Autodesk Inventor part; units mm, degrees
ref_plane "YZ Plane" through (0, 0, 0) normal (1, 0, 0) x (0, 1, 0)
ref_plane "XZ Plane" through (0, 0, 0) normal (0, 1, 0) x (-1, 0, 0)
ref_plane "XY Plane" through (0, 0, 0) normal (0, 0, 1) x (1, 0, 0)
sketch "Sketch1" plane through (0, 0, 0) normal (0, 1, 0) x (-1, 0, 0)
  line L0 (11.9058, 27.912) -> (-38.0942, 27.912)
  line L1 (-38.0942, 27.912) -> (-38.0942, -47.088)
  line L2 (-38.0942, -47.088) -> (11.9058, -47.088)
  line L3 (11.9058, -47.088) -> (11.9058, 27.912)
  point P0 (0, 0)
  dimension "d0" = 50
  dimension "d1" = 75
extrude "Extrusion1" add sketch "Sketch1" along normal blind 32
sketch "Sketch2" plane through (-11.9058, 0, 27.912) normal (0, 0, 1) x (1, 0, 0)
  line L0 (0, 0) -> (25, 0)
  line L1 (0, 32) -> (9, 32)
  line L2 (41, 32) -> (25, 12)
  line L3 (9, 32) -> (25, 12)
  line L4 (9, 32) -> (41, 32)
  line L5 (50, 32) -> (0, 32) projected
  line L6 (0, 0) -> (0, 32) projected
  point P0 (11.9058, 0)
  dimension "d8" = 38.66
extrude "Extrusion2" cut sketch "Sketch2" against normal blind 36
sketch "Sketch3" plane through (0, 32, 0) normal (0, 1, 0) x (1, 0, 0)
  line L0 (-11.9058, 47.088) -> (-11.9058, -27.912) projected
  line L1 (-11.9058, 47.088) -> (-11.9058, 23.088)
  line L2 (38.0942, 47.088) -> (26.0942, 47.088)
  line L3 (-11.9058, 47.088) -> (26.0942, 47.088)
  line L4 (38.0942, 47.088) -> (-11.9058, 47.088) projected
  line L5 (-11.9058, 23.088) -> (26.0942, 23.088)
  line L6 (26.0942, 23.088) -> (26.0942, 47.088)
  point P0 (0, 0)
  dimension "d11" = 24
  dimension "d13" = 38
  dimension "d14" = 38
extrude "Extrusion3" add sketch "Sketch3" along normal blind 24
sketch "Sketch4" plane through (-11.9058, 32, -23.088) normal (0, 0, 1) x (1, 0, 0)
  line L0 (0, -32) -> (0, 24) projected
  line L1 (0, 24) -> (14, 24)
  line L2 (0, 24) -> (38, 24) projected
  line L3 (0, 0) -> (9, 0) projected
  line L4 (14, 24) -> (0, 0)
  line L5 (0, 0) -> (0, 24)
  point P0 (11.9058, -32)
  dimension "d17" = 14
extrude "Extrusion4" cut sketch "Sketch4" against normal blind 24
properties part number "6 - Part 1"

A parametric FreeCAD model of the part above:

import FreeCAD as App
import Part
import Sketcher
from FreeCAD import Vector

doc = App.newDocument("Part")
body = doc.addObject("PartDesign::Body", "Body")

# Sketch on XZ plane
sketch1 = doc.addObject("Sketcher::SketchObject", "Sketch")
body.addObject(sketch1)
sketch1.AttachmentSupport = (doc.XZ_Plane, [""])
sketch1.MapMode = "FlatFace"
sketch1.addGeometry([
    Part.LineSegment(Vector(-12, -47, 0), Vector(-12, 28, 0)),
    Part.LineSegment(Vector(-12, 28, 0), Vector(38, 28, 0)),
    Part.LineSegment(Vector(38, 28, 0), Vector(38, -47, 0)),
    Part.LineSegment(Vector(38, -47, 0), Vector(-12, -47, 0)),
], False)
sketch1.addConstraint([
    Sketcher.Constraint("Coincident", 0, 2, 1, 1),
    Sketcher.Constraint("Coincident", 1, 2, 2, 1),
    Sketcher.Constraint("Coincident", 2, 2, 3, 1),
    Sketcher.Constraint("Coincident", 3, 2, 0, 1),
    Sketcher.Constraint("Vertical", 0),
    Sketcher.Constraint("Horizontal", 1),
    Sketcher.Constraint("Vertical", 2),
    Sketcher.Constraint("Horizontal", 3),
    Sketcher.Constraint("DistanceX", 1, 1, 1, 2, 50.0),
    Sketcher.Constraint("DistanceY", 0, 1, 0, 2, 75.0),
    Sketcher.Constraint("DistanceY", -1, 1, 0, 2, 27.912),
    Sketcher.Constraint("DistanceX", 0, 2, -1, 1, 11.9058),
])
pad1 = doc.addObject("PartDesign::Pad", "Pad")
body.addObject(pad1)
pad1.Profile = sketch1
pad1.Length = 32
pad1.Reversed = True

# Sketch on XY plane
sketch2 = doc.addObject("Sketcher::SketchObject", "Sketch001")
body.addObject(sketch2)
sketch2.AttachmentSupport = (doc.XY_Plane, [""])
sketch2.MapMode = "FlatFace"
sketch2.AttachmentOffset = App.Placement(Vector(0, 0, 27.912), App.Rotation())
sketch2.addGeometry([
    Part.LineSegment(Vector(13, 12, 0), Vector(29, 32, 0)),
    Part.LineSegment(Vector(29, 32, 0), Vector(-3, 32, 0)),
    Part.LineSegment(Vector(-3, 32, 0), Vector(13, 12, 0)),
], False)
sketch2.addConstraint([
    Sketcher.Constraint("Coincident", 0, 2, 1, 1),
    Sketcher.Constraint("Coincident", 1, 2, 2, 1),
    Sketcher.Constraint("Coincident", 2, 2, 0, 1),
    Sketcher.Constraint("Horizontal", 1),
    Sketcher.Constraint("Equal", 0, 2),
    Sketcher.Constraint("DistanceX", 1, 2, 1, 1, 32.0),
    Sketcher.Constraint("DistanceY", -1, 1, 0, 2, 32.0),
    Sketcher.Constraint("DistanceY", -1, 1, 2, 2, 12.0),
    Sketcher.Constraint("DistanceX", -1, 1, 0, 2, 29.0942),
])
pocket1 = doc.addObject("PartDesign::Pocket", "Pocket")
body.addObject(pocket1)
pocket1.Profile = sketch2
pocket1.Length = 36

# Sketch on XZ plane
sketch3 = doc.addObject("Sketcher::SketchObject", "Sketch002")
body.addObject(sketch3)
sketch3.AttachmentSupport = (doc.XZ_Plane, [""])
sketch3.MapMode = "FlatFace"
sketch3.AttachmentOffset = App.Placement(Vector(0, 0, -32), App.Rotation())
sketch3.addGeometry([
    Part.LineSegment(Vector(26, -47, 0), Vector(-12, -47, 0)),
    Part.LineSegment(Vector(-12, -47, 0), Vector(-12, -23, 0)),
    Part.LineSegment(Vector(-12, -23, 0), Vector(26, -23, 0)),
    Part.LineSegment(Vector(26, -23, 0), Vector(26, -47, 0)),
], False)
sketch3.addConstraint([
    Sketcher.Constraint("Coincident", 0, 2, 1, 1),
    Sketcher.Constraint("Coincident", 1, 2, 2, 1),
    Sketcher.Constraint("Coincident", 2, 2, 3, 1),
    Sketcher.Constraint("Coincident", 3, 2, 0, 1),
    Sketcher.Constraint("Horizontal", 0),
    Sketcher.Constraint("Vertical", 1),
    Sketcher.Constraint("Horizontal", 2),
    Sketcher.Constraint("Vertical", 3),
    Sketcher.Constraint("DistanceX", 0, 2, 0, 1, 38.0),
    Sketcher.Constraint("DistanceY", 1, 1, 1, 2, 24.0),
    Sketcher.Constraint("DistanceY", 0, 2, -1, 1, 47.088),
    Sketcher.Constraint("DistanceX", 0, 2, -1, 1, 11.9058),
])
pad2 = doc.addObject("PartDesign::Pad", "Pad001")
body.addObject(pad2)
pad2.Profile = sketch3
pad2.Length = 24
pad2.Reversed = True

# Sketch on XY plane
sketch4 = doc.addObject("Sketcher::SketchObject", "Sketch003")
body.addObject(sketch4)
sketch4.AttachmentSupport = (doc.XY_Plane, [""])
sketch4.MapMode = "FlatFace"
sketch4.AttachmentOffset = App.Placement(Vector(0, 0, -23.088), App.Rotation())
sketch4.addGeometry([
    Part.LineSegment(Vector(-12, 56, 0), Vector(-12, 32, 0)),
    Part.LineSegment(Vector(-12, 32, 0), Vector(2, 56, 0)),
    Part.LineSegment(Vector(2, 56, 0), Vector(-12, 56, 0)),
], False)
sketch4.addConstraint([
    Sketcher.Constraint("Coincident", 0, 2, 1, 1),
    Sketcher.Constraint("Coincident", 1, 2, 2, 1),
    Sketcher.Constraint("Coincident", 2, 2, 0, 1),
    Sketcher.Constraint("Vertical", 0),
    Sketcher.Constraint("Horizontal", 2),
    Sketcher.Constraint("DistanceX", 2, 2, 2, 1, 14.0),
    Sketcher.Constraint("DistanceY", 0, 2, 0, 1, 24.0),
    Sketcher.Constraint("DistanceY", -1, 1, 0, 2, 32.0),
    Sketcher.Constraint("DistanceX", 0, 2, -1, 1, 11.9058),
])
pocket2 = doc.addObject("PartDesign::Pocket", "Pocket001")
body.addObject(pocket2)
pocket2.Profile = sketch4
pocket2.Length = 24

doc.recompute()
